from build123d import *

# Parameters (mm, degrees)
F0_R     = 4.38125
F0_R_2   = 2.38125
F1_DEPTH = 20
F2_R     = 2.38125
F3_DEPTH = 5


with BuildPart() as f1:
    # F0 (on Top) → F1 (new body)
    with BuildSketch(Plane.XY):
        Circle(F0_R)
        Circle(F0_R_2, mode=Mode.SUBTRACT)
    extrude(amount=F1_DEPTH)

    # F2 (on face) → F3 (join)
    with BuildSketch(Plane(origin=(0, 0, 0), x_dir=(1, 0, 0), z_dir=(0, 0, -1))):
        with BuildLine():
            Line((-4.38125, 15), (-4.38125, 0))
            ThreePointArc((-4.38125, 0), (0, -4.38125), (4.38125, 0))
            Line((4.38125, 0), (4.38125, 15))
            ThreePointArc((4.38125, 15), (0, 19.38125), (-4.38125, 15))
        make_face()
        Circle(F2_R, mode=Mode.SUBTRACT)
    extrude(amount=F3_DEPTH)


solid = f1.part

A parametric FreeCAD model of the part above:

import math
import FreeCAD as App
import Part
import Sketcher
from FreeCAD import Vector
Q = App.Units.Quantity

doc = App.newDocument("Part")
body = doc.addObject("PartDesign::Body", "Body")

sketch1 = doc.addObject("Sketcher::SketchObject", "Sketch")
body.addObject(sketch1)
sketch1.AttachmentSupport = (doc.XY_Plane, [""])
sketch1.MapMode = "FlatFace"
sketch1.addGeometry([
    Part.Circle(Vector(0, 0, 0), Vector(0, 0, 1), 4.4),
    Part.Circle(Vector(0, 0, 0), Vector(0, 0, 1), 2.4),
], False)
sketch1.addConstraint([
    Sketcher.Constraint("Coincident", 0, 3, -1, 1),
    Sketcher.Constraint("Coincident", 1, 3, -1, 1),
    Sketcher.Constraint("Diameter", 0, Q("8.7625 mm")),
    Sketcher.Constraint("Diameter", 1, Q("4.7625 mm")),
])
pad1 = doc.addObject("PartDesign::Pad", "Pad")
body.addObject(pad1)
pad1.Profile = sketch1
pad1.Length = 20

sketch2 = doc.addObject("Sketcher::SketchObject", "Sketch001")
body.addObject(sketch2)
sketch2.AttachmentSupport = (doc.XY_Plane, [""])
sketch2.MapMode = "FlatFace"
sketch2.addGeometry([
    Part.LineSegment(Vector(-4.4, -15, 0), Vector(-4.4, 0, 0)),
    Part.ArcOfCircle(Part.Circle(Vector(0, 0, 0), Vector(0, 0, 1), 4.4), math.radians(0), math.radians(180)),
    Part.LineSegment(Vector(4.4, 0, 0), Vector(4.4, -15, 0)),
    Part.ArcOfCircle(Part.Circle(Vector(0, -15, 0), Vector(0, 0, 1), 4.4), math.radians(180), math.radians(360)),
    Part.Circle(Vector(0, 0, 0), Vector(0, 0, 1), 2.4),
], False)
sketch2.addConstraint([
    Sketcher.Constraint("Tangent", 0, 2, 1, 2),
    Sketcher.Constraint("Tangent", 1, 1, 2, 1),
    Sketcher.Constraint("Tangent", 2, 2, 3, 2),
    Sketcher.Constraint("Tangent", 3, 1, 0, 1),
    Sketcher.Constraint("Vertical", 0),
    Sketcher.Constraint("Vertical", 2),
    Sketcher.Constraint("Coincident", 1, 3, -1, 1),
    Sketcher.Constraint("Coincident", 4, 3, -1, 1),
    Sketcher.Constraint("DistanceY", 0, 1, 0, 2, Q("15 mm")),
    Sketcher.Constraint("Diameter", 4, Q("4.7625 mm")),
    Sketcher.Constraint("Radius", 1, Q("4.38125 mm")),
])
pad2 = doc.addObject("PartDesign::Pad", "Pad001")
body.addObject(pad2)
pad2.Profile = sketch2
pad2.Length = 5
pad2.Reversed = True

doc.recompute()
